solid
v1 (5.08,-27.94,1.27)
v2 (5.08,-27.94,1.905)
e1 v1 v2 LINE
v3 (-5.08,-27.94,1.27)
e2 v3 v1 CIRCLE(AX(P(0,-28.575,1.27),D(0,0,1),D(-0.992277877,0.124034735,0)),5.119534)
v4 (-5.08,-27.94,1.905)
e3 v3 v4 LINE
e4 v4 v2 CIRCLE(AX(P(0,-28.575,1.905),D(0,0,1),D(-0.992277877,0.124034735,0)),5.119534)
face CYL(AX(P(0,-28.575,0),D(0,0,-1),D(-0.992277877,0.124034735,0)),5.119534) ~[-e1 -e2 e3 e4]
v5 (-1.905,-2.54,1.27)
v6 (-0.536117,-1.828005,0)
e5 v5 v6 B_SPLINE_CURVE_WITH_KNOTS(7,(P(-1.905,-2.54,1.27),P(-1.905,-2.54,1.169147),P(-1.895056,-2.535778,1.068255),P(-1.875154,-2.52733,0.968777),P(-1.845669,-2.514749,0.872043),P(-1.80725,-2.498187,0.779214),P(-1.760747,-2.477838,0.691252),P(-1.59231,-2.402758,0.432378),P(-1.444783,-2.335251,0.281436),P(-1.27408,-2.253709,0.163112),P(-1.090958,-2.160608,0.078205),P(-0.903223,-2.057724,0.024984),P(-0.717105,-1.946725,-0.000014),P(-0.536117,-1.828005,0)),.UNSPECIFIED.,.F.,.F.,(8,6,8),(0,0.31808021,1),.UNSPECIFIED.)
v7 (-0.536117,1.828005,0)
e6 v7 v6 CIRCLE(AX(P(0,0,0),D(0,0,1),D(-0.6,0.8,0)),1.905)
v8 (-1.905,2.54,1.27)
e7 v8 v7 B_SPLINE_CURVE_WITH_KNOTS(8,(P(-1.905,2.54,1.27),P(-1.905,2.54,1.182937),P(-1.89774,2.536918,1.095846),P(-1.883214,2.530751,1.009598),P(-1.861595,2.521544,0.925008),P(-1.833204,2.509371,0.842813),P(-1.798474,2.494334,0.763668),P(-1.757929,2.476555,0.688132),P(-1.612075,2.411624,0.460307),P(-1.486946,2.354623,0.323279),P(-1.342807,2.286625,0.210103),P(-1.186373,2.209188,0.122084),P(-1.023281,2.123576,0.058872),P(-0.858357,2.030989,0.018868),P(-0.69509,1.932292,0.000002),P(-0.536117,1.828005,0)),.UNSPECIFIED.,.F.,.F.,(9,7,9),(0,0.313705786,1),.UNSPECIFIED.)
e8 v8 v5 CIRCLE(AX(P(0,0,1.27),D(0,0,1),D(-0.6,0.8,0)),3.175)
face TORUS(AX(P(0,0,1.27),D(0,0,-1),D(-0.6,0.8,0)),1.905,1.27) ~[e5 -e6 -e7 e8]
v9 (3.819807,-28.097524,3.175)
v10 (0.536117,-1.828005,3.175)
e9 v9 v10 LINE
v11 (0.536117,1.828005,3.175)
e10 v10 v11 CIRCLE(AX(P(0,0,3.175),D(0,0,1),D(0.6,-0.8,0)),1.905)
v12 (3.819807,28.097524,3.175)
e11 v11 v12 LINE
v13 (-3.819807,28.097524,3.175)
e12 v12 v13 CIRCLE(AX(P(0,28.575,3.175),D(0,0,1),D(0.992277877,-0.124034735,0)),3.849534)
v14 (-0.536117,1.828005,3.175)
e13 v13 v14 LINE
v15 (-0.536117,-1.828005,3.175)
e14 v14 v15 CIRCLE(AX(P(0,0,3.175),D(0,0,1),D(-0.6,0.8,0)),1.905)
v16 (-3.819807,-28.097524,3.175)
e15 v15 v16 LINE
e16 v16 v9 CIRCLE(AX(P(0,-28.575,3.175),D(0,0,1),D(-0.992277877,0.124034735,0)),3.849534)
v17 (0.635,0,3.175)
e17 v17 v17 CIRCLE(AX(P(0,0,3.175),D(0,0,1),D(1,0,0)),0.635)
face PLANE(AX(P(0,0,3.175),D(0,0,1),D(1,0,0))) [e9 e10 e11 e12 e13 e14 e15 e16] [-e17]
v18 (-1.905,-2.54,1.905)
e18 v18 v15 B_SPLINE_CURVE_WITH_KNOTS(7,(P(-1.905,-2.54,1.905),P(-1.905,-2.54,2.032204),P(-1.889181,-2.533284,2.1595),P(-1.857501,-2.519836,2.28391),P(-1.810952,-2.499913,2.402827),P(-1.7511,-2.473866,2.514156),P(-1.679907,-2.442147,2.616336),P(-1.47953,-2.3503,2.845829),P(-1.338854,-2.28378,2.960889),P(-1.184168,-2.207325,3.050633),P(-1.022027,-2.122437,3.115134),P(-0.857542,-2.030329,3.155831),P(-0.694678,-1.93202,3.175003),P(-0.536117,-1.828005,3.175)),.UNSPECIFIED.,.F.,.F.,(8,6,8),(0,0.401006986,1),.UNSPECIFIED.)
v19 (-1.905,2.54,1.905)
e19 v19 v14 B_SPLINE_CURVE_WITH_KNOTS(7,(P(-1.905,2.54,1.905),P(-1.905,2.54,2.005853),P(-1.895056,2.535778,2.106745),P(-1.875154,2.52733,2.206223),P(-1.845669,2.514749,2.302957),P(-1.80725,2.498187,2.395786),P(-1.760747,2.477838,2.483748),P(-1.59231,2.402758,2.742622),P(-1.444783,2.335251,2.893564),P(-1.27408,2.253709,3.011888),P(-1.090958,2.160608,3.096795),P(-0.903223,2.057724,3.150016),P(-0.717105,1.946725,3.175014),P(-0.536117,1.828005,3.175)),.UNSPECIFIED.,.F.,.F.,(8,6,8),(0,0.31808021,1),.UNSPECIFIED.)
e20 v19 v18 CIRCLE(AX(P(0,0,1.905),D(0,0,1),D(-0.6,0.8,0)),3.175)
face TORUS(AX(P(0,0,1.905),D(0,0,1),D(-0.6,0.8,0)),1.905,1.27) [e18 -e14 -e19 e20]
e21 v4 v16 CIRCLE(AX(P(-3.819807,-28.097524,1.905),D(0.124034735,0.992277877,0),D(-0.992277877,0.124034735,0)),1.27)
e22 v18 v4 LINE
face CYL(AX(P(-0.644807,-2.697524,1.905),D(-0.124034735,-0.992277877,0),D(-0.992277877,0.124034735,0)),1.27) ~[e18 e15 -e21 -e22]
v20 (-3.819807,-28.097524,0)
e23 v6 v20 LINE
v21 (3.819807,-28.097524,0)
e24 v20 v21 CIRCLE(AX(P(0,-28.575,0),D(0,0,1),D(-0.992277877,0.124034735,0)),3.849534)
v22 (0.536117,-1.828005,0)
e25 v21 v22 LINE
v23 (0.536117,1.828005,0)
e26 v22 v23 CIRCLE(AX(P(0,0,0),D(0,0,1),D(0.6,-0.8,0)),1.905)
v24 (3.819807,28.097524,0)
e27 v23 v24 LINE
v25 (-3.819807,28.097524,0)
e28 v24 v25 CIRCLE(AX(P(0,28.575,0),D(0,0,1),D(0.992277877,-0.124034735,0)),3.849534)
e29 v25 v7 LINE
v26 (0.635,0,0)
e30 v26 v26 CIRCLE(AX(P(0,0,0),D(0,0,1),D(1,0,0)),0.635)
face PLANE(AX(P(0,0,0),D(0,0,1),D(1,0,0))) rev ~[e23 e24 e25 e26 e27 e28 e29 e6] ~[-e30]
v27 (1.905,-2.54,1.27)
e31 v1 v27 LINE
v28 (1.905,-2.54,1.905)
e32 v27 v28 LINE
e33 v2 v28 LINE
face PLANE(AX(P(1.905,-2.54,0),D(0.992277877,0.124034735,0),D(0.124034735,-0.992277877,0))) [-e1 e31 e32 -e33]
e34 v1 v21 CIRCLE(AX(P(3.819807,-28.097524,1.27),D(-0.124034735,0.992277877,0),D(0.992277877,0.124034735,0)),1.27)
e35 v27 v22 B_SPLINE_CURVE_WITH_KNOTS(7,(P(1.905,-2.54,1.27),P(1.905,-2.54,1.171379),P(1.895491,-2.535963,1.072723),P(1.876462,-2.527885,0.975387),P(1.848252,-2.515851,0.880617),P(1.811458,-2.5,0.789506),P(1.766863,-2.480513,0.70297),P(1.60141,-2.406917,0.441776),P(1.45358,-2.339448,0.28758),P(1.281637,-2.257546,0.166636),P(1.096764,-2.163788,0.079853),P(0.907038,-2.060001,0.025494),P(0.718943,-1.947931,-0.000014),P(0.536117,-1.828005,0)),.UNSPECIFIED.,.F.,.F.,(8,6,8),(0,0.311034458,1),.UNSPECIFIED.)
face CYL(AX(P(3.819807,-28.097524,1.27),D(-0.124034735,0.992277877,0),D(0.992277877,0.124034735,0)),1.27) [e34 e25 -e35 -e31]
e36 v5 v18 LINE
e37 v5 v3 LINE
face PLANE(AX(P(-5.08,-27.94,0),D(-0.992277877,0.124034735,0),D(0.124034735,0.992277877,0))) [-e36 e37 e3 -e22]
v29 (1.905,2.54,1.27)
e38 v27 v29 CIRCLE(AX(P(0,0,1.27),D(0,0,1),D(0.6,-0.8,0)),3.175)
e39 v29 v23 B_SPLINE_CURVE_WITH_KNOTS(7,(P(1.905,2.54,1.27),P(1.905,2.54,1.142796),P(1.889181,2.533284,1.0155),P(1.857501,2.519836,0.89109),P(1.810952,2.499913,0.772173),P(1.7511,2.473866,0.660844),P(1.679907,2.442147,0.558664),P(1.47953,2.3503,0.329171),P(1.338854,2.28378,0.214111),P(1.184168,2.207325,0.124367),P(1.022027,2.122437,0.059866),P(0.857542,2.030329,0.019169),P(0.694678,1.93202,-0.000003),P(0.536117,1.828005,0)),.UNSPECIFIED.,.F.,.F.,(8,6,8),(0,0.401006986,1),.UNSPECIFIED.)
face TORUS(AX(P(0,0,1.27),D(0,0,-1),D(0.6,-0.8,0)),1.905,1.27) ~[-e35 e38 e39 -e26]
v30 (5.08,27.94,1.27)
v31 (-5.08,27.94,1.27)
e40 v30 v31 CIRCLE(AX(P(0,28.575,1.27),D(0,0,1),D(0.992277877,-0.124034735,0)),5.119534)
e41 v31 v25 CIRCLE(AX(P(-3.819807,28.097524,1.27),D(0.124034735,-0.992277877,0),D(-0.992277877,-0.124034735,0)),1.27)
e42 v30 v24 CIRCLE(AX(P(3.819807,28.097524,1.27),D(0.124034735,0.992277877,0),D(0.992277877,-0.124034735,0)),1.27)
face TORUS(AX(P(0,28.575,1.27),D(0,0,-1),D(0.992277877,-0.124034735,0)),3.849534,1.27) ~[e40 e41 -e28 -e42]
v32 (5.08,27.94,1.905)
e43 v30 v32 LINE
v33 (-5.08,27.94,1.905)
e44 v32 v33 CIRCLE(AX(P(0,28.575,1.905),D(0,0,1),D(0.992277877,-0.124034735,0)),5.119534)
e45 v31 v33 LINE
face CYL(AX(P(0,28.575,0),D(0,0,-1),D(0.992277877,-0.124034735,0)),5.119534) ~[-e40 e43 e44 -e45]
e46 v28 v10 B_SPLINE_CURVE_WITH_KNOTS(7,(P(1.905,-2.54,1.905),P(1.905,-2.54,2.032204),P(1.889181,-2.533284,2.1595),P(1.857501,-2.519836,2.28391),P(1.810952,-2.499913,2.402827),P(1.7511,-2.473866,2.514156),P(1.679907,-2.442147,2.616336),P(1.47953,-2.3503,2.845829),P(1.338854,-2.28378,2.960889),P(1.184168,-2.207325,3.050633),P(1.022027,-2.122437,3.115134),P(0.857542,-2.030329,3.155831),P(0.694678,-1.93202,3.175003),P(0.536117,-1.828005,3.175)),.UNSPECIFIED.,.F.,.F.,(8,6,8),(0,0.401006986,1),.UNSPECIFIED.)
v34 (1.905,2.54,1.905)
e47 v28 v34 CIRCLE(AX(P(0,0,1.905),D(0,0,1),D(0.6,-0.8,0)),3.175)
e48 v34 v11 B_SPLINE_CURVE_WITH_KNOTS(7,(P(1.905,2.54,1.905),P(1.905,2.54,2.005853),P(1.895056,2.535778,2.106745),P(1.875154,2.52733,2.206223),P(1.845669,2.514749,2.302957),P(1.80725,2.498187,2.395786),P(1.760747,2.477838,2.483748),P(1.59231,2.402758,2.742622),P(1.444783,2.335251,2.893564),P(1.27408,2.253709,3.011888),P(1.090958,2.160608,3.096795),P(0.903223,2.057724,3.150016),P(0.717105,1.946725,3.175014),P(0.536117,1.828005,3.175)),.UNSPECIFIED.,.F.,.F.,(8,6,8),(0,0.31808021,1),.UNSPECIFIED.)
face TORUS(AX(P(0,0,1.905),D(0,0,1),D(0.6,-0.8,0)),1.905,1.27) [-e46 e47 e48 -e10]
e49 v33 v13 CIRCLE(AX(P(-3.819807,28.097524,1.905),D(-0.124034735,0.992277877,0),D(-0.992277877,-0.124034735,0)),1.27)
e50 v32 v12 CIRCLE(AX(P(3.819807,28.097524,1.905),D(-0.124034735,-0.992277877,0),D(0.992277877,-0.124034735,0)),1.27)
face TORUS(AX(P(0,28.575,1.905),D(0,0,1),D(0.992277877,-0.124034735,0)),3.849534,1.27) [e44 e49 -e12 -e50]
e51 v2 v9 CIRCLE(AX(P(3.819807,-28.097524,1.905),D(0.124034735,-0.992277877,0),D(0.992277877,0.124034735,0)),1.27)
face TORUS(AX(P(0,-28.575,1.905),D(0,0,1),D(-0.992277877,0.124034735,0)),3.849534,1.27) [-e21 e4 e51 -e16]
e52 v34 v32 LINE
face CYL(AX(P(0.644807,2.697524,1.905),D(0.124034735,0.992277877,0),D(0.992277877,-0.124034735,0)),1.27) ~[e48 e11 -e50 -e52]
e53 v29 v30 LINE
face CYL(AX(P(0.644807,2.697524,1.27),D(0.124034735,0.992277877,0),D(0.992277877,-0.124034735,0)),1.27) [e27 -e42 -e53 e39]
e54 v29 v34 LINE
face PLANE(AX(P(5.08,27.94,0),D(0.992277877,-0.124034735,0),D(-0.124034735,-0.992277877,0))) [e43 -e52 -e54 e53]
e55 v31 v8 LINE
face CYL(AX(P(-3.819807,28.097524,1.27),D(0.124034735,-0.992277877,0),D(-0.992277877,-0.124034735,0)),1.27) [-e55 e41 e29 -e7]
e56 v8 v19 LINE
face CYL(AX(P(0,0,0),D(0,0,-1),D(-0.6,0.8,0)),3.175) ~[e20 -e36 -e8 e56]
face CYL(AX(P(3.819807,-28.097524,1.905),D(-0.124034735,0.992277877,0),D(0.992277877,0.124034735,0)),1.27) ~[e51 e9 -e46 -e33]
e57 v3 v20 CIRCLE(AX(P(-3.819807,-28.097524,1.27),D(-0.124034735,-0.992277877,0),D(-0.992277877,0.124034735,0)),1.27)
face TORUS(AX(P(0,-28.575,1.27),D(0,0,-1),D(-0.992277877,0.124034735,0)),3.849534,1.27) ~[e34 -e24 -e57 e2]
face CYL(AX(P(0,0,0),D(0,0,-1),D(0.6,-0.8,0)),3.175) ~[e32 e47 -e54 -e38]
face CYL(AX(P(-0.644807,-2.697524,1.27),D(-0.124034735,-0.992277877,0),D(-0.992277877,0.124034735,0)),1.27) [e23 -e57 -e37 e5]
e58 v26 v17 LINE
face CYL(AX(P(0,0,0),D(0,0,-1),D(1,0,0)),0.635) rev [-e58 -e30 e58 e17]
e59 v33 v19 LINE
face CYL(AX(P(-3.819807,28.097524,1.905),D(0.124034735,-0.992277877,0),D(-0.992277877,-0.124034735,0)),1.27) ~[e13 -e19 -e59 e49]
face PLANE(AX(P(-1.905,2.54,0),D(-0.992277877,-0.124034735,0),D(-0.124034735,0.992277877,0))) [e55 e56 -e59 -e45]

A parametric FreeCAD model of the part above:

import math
import FreeCAD as App
import Part
import Sketcher
from FreeCAD import Vector
Q = App.Units.Quantity


def edges_at(feature, points):
    """Names of the edges that pass closest to the given points."""
    edges = feature.Shape.Edges
    near = lambda p: min(range(len(edges)), key=lambda i: edges[i].distToShape(Part.Vertex(*p))[0])
    return sorted({f"Edge{near(p) + 1}" for p in points})

doc = App.newDocument("Part")
body = doc.addObject("PartDesign::Body", "Body")

sketch1 = body.newObject("Sketcher::SketchObject", "Sketch")
sketch1.AttachmentSupport = (doc.getObject("XY_Plane"), [""])
sketch1.MapMode = "FlatFace"
sketch1.addGeometry([
    Part.LineSegment(Vector(-5.08, 27.94, 0), Vector(-1.905, 2.54, 0)),
    Part.ArcOfCircle(Part.Circle(Vector(0, 0, 0), Vector(0, 0, 1), 3.175), math.radians(126.869898), math.radians(233.130102)),
    Part.LineSegment(Vector(-1.905, -2.54, 0), Vector(-5.08, -27.94, 0)),
    Part.ArcOfCircle(Part.Circle(Vector(0, -28.575, 0), Vector(0, 0, 1), 5.119534), math.radians(172.874984), math.radians(367.125016)),
    Part.LineSegment(Vector(5.08, -27.94, 0), Vector(1.905, -2.54, 0)),
    Part.ArcOfCircle(Part.Circle(Vector(0, 0, 0), Vector(0, 0, 1), 3.175), math.radians(-53.130102), math.radians(53.130102)),
    Part.LineSegment(Vector(1.905, 2.54, 0), Vector(5.08, 27.94, 0)),
    Part.ArcOfCircle(Part.Circle(Vector(0, 28.575, 0), Vector(0, 0, 1), 5.119534), math.radians(-7.125016), math.radians(187.125016)),
    Part.Circle(Vector(0, 0, 0), Vector(0, 0, 1), 0.635),
], False)
sketch1.addConstraint([
    Sketcher.Constraint("Coincident", 0, 2, 1, 1),
    Sketcher.Constraint("Coincident", 1, 2, 2, 1),
    Sketcher.Constraint("Tangent", 2, 2, 3, 1),
    Sketcher.Constraint("Tangent", 3, 2, 4, 1),
    Sketcher.Constraint("Coincident", 4, 2, 5, 1),
    Sketcher.Constraint("Coincident", 5, 2, 6, 1),
    Sketcher.Constraint("Tangent", 6, 2, 7, 1),
    Sketcher.Constraint("Tangent", 7, 2, 0, 1),
    Sketcher.Constraint("Coincident", 1, 3, -1, 1),
    Sketcher.Constraint("Coincident", 5, 3, -1, 1),
    Sketcher.Constraint("Coincident", 8, 3, -1, 1),
    Sketcher.Constraint("Equal", 1, 5),
    Sketcher.Constraint("Equal", 3, 7),
    Sketcher.Constraint("Symmetric", 3, 3, 7, 3, -1, 1),
    Sketcher.Constraint("Symmetric", 2, 2, 3, 2, -2),
    Sketcher.Constraint("Parallel", 0, 4),
    Sketcher.Constraint("Parallel", 2, 6),
    Sketcher.Constraint("Diameter", 8, Q("0.05 in")),
    Sketcher.Constraint("Radius", 1, Q("0.125 in")),
    Sketcher.Constraint("DistanceY", 2, 2, 1, 2, Q("1 in")),
    Sketcher.Constraint("DistanceY", -1, 1, 0, 2, Q("0.1 in")),
    Sketcher.Constraint("DistanceX", 2, 2, 1, 2, Q("0.125 in")),
])
pad1 = body.newObject("PartDesign::Pad", "Pad")
pad1.Profile = sketch1
pad1.Length = Q("0.125 in")
doc.recompute()

fillet = body.newObject("PartDesign::Fillet", "Fillet")
fillet.Base = (pad1, edges_at(pad1, [
    (0, 33.694, 3.175),
    (-3.493, 15.24, 3.175),
    (3.493, 15.24, 3.175),
    (0, -33.694, 3.175),
    (-3.493, -15.24, 3.175),
    (3.493, -15.24, 3.175),
    (0, -33.694, 0),
    (-3.493, -15.24, 0),
    (3.493, -15.24, 0),
    (0, 33.694, 0),
    (-3.493, 15.24, 0),
    (3.493, 15.24, 0),
    (3.175, 0, 3.175),
    (-3.175, 0, 3.175),
    (3.175, 0, 0),
    (-3.175, 0, 0),
]))
fillet.Radius = Q("0.05 in")

doc.recompute()
